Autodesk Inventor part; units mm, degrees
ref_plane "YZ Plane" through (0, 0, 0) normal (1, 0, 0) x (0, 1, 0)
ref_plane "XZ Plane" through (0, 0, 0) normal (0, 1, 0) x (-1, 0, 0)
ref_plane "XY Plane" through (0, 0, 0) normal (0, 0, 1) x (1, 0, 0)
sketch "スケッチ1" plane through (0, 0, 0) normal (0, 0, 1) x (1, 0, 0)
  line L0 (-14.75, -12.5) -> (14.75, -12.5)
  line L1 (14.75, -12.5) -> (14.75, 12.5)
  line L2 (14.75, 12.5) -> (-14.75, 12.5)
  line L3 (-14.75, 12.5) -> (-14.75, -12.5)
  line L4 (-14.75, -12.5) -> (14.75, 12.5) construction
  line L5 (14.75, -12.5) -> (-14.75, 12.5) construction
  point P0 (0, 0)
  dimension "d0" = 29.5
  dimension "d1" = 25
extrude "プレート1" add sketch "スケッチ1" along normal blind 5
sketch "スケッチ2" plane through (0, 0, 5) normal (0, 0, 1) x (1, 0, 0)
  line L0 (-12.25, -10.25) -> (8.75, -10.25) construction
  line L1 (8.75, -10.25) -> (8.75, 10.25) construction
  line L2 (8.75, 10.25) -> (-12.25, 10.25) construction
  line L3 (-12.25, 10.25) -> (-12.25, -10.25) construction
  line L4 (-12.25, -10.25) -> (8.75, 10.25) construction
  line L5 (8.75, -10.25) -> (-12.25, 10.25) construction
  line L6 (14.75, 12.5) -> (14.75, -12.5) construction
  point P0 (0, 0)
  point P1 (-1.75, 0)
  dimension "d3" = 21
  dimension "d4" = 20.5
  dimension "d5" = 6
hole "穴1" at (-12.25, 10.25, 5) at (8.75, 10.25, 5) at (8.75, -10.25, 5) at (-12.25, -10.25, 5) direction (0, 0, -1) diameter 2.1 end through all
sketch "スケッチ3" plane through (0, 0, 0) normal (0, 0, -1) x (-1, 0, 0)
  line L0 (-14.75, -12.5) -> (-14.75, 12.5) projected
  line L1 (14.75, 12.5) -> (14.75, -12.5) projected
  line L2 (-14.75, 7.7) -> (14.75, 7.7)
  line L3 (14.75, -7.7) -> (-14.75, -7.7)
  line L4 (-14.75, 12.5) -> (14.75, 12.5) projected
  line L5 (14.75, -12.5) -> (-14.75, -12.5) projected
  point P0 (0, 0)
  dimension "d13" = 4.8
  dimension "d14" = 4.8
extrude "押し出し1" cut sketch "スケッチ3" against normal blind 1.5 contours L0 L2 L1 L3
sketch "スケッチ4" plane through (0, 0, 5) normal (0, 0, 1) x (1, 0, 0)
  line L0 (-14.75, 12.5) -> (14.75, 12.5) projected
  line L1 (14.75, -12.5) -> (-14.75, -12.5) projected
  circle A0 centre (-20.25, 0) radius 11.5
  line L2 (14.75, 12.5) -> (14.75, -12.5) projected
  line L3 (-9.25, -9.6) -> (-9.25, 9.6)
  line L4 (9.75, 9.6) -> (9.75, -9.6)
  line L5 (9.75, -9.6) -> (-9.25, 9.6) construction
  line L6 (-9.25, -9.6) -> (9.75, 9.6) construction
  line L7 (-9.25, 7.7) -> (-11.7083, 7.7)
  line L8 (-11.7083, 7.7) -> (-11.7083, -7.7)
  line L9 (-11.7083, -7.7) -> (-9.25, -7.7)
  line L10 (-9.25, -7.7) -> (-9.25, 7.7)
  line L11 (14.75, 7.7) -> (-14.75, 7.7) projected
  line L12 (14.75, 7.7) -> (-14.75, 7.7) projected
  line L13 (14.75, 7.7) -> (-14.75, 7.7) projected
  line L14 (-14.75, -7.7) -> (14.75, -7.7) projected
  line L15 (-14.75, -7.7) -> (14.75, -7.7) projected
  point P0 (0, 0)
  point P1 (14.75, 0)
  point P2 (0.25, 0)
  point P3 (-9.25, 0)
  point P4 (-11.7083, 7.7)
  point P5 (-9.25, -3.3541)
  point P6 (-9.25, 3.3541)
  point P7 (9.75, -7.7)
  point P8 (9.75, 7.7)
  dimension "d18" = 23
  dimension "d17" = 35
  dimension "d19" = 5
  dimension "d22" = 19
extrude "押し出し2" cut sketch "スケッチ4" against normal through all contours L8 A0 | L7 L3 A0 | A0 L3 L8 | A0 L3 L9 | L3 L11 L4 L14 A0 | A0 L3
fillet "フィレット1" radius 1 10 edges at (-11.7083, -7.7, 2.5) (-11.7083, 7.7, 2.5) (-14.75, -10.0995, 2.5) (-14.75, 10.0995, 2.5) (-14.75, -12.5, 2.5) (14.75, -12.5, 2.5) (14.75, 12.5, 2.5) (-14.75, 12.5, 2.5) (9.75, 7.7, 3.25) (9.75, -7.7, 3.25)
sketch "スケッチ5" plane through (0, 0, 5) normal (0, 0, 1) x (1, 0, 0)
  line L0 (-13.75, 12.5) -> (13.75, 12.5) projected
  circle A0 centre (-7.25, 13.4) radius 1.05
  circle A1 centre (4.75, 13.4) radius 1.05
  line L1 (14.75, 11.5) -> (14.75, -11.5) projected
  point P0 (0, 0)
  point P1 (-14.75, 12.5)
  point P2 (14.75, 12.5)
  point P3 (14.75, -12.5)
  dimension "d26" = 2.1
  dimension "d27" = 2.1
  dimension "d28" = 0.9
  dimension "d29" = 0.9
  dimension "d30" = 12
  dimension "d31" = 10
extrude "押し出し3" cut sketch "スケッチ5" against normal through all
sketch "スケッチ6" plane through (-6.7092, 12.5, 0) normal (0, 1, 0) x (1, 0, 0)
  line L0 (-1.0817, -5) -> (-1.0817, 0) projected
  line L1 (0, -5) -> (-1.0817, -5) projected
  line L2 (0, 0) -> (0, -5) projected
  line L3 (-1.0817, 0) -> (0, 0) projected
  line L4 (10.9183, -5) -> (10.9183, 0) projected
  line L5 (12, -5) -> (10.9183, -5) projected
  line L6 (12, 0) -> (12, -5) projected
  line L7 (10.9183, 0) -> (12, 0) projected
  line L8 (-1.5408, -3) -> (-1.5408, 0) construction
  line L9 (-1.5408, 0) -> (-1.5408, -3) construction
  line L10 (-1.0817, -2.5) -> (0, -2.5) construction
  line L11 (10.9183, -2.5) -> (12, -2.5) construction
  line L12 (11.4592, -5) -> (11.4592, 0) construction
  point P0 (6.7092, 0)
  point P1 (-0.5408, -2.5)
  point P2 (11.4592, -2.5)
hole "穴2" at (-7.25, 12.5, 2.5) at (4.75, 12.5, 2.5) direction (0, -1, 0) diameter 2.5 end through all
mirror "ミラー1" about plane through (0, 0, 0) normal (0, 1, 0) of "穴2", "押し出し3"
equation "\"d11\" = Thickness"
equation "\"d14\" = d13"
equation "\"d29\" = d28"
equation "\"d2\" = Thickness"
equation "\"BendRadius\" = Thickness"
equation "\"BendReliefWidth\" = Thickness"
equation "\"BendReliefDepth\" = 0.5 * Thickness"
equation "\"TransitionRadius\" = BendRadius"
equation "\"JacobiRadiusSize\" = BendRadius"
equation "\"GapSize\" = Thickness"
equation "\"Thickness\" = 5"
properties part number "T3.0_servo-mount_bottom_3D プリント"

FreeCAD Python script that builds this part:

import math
import FreeCAD as App
import Part
import Sketcher


def edges_at(feature, points):
    """Names of the edges that pass closest to the given points."""
    edges = feature.Shape.Edges
    near = lambda p: min(range(len(edges)), key=lambda i: edges[i].distToShape(Part.Vertex(*p))[0])
    return sorted({f"Edge{near(p) + 1}" for p in points})

doc = App.newDocument("Part")
params = doc.addObject("Spreadsheet::Sheet", "Params")
for row, (alias, value) in enumerate([
    ("sketch1_height", "25 mm"),
    ("sketch1_width", "29.5 mm"),
    ("pad1_length", "5 mm"),
    ("sketch2_diameter", "2.1 mm"),
    ("hole_diameter", "2.1 mm"),
    ("sketch3_width", "29.5 mm"),
    ("sketch3_height", "15.4 mm"),
    ("pocket1_length", "1.5 mm"),
    ("sketch4_radius", "11.5 mm"),
    ("sketch4_height", "15.4 mm"),
    ("fillet_radius", "1 mm"),
    ("sketch5_diameter", "2.1 mm"),
    ("sketch6_diameter", "2.5 mm"),
    ("hole2_diameter", "2.5 mm"),
], start=1):
    params.set(f"A{row}", alias)
    params.set(f"B{row}", "=" + value)
    params.setAlias(f"B{row}", alias)

body = doc.addObject("PartDesign::Body", "Body")

sketch1 = doc.addObject("Sketcher::SketchObject", "Sketch")
body.addObject(sketch1)
sketch1.AttachmentSupport = (doc.XY_Plane, [""])
sketch1.MapMode = "FlatFace"
sketch1.addGeometry(Part.LineSegment(App.Vector(-14.75, 12.5, 0), App.Vector(-14.75, -12.5, 0)), False)
sketch1.addGeometry(Part.LineSegment(App.Vector(-14.75, -12.5, 0), App.Vector(14.75, -12.5, 0)), False)
sketch1.addGeometry(Part.LineSegment(App.Vector(14.75, -12.5, 0), App.Vector(14.75, 12.5, 0)), False)
sketch1.addGeometry(Part.LineSegment(App.Vector(14.75, 12.5, 0), App.Vector(-14.75, 12.5, 0)), False)
sketch1.addConstraint(Sketcher.Constraint("Coincident", 0, 2, 1, 1))
sketch1.addConstraint(Sketcher.Constraint("Coincident", 1, 2, 2, 1))
sketch1.addConstraint(Sketcher.Constraint("Coincident", 2, 2, 3, 1))
sketch1.addConstraint(Sketcher.Constraint("Coincident", 3, 2, 0, 1))
sketch1.addConstraint(Sketcher.Constraint("Vertical", 0))
sketch1.addConstraint(Sketcher.Constraint("Horizontal", 1))
sketch1.addConstraint(Sketcher.Constraint("Vertical", 2))
sketch1.addConstraint(Sketcher.Constraint("Horizontal", 3))
sketch1.addConstraint(Sketcher.Constraint("Symmetric", 0, 2, 2, 2, -1, 1))
sketch1.addConstraint(Sketcher.Constraint("DistanceY", 0, 2, 0, 1, 25.0))
sketch1.addConstraint(Sketcher.Constraint("DistanceX", 1, 1, 1, 2, 29.5))
sketch1.setExpression("Constraints[9]", "Params.sketch1_height")
sketch1.setExpression("Constraints[10]", "Params.sketch1_width")
pad1 = doc.addObject("PartDesign::Pad", "Pad")
body.addObject(pad1)
pad1.Profile = sketch1
pad1.setExpression("Length", "Params.pad1_length")

sketch2 = doc.addObject("Sketcher::SketchObject", "Sketch001")
body.addObject(sketch2)
sketch2.AttachmentSupport = (doc.XY_Plane, [""])
sketch2.MapMode = "FlatFace"
sketch2.AttachmentOffset = App.Placement(App.Vector(0, 0, 5), App.Rotation())
sketch2.addGeometry(Part.Circle(App.Vector(-12.25, 10.25, 0), App.Vector(0, 0, 1), 1.05), False)
sketch2.addGeometry(Part.Circle(App.Vector(8.75, 10.25, 0), App.Vector(0, 0, 1), 1.05), False)
sketch2.addGeometry(Part.Circle(App.Vector(8.75, -10.25, 0), App.Vector(0, 0, 1), 1.05), False)
sketch2.addGeometry(Part.Circle(App.Vector(-12.25, -10.25, 0), App.Vector(0, 0, 1), 1.05), False)
sketch2.addConstraint(Sketcher.Constraint("Equal", 0, 1))
sketch2.addConstraint(Sketcher.Constraint("Equal", 1, 2))
sketch2.addConstraint(Sketcher.Constraint("Equal", 2, 3))
sketch2.addConstraint(Sketcher.Constraint("Symmetric", 1, 3, 2, 3, -1))
sketch2.addConstraint(Sketcher.Constraint("Symmetric", 0, 3, 3, 3, -1))
sketch2.addConstraint(Sketcher.Constraint("Horizontal", 0, 3, 1, 3))
sketch2.addConstraint(Sketcher.Constraint("Diameter", 0, 2.1))
sketch2.addConstraint(Sketcher.Constraint("DistanceX", 0, 3, 1, 3, 21.0))
sketch2.addConstraint(Sketcher.Constraint("DistanceY", 2, 3, 1, 3, 20.5))
sketch2.addConstraint(Sketcher.Constraint("DistanceX", 0, 3, -1, 1, 12.25))
sketch2.setExpression("Constraints[6]", "Params.sketch2_diameter")
doc.recompute()
hole = doc.addObject("PartDesign::Hole", "Hole")
body.addObject(hole)
hole.Profile = sketch2
hole.ThreadType = "None"
hole.setExpression("Diameter", "Params.hole_diameter")
hole.DepthType = "ThroughAll"

sketch3 = doc.addObject("Sketcher::SketchObject", "Sketch002")
body.addObject(sketch3)
sketch3.AttachmentSupport = (doc.XY_Plane, [""])
sketch3.MapMode = "FlatFace"
sketch3.addGeometry(Part.LineSegment(App.Vector(14.75, 7.7, 0), App.Vector(14.75, -7.7, 0)), False)
sketch3.addGeometry(Part.LineSegment(App.Vector(14.75, -7.7, 0), App.Vector(-14.75, -7.7, 0)), False)
sketch3.addGeometry(Part.LineSegment(App.Vector(-14.75, -7.7, 0), App.Vector(-14.75, 7.7, 0)), False)
sketch3.addGeometry(Part.LineSegment(App.Vector(-14.75, 7.7, 0), App.Vector(14.75, 7.7, 0)), False)
sketch3.addConstraint(Sketcher.Constraint("Coincident", 0, 2, 1, 1))
sketch3.addConstraint(Sketcher.Constraint("Coincident", 1, 2, 2, 1))
sketch3.addConstraint(Sketcher.Constraint("Coincident", 2, 2, 3, 1))
sketch3.addConstraint(Sketcher.Constraint("Coincident", 3, 2, 0, 1))
sketch3.addConstraint(Sketcher.Constraint("Vertical", 0))
sketch3.addConstraint(Sketcher.Constraint("Horizontal", 1))
sketch3.addConstraint(Sketcher.Constraint("Vertical", 2))
sketch3.addConstraint(Sketcher.Constraint("Horizontal", 3))
sketch3.addConstraint(Sketcher.Constraint("Symmetric", 0, 2, 2, 2, -1, 1))
sketch3.addConstraint(Sketcher.Constraint("DistanceX", 1, 2, 1, 1, 29.5))
sketch3.addConstraint(Sketcher.Constraint("DistanceY", 0, 2, 0, 1, 15.4))
sketch3.setExpression("Constraints[9]", "Params.sketch3_width")
sketch3.setExpression("Constraints[10]", "Params.sketch3_height")
pocket1 = doc.addObject("PartDesign::Pocket", "Pocket")
body.addObject(pocket1)
pocket1.Profile = sketch3
pocket1.setExpression("Length", "Params.pocket1_length")
pocket1.Reversed = True

sketch4 = doc.addObject("Sketcher::SketchObject", "Sketch003")
body.addObject(sketch4)
sketch4.AttachmentSupport = (doc.XY_Plane, [""])
sketch4.MapMode = "FlatFace"
sketch4.AttachmentOffset = App.Placement(App.Vector(0, 0, 5), App.Rotation())
sketch4.addGeometry(Part.ArcOfCircle(Part.Circle(App.Vector(-20.25, 0, 0), App.Vector(0, 0, 1), 11.5), math.radians(42.033392), math.radians(317.966608)), False)
sketch4.addGeometry(Part.LineSegment(App.Vector(-11.7083, -7.7, 0), App.Vector(9.75, -7.7, 0)), False)
sketch4.addGeometry(Part.LineSegment(App.Vector(9.75, -7.7, 0), App.Vector(9.75, 7.7, 0)), False)
sketch4.addGeometry(Part.LineSegment(App.Vector(9.75, 7.7, 0), App.Vector(-11.7083, 7.7, 0)), False)
sketch4.addConstraint(Sketcher.Constraint("Coincident", 0, 2, 1, 1))
sketch4.addConstraint(Sketcher.Constraint("Coincident", 1, 2, 2, 1))
sketch4.addConstraint(Sketcher.Constraint("Coincident", 2, 2, 3, 1))
sketch4.addConstraint(Sketcher.Constraint("Coincident", 3, 2, 0, 1))
sketch4.addConstraint(Sketcher.Constraint("Horizontal", 1))
sketch4.addConstraint(Sketcher.Constraint("Vertical", 2))
sketch4.addConstraint(Sketcher.Constraint("Horizontal", 3))
sketch4.addConstraint(Sketcher.Constraint("Symmetric", 0, 2, 3, 2, -1))
sketch4.addConstraint(Sketcher.Constraint("Radius", 0, 11.5))
sketch4.addConstraint(Sketcher.Constraint("DistanceY", 2, 1, 2, 2, 15.4))
sketch4.addConstraint(Sketcher.Constraint("DistanceX", 0, 3, 1, 2, 30.0))
sketch4.addConstraint(Sketcher.Constraint("DistanceX", 0, 3, -1, 1, 20.25))
sketch4.setExpression("Constraints[8]", "Params.sketch4_radius")
sketch4.setExpression("Constraints[9]", "Params.sketch4_height")
pocket2 = doc.addObject("PartDesign::Pocket", "Pocket001")
body.addObject(pocket2)
pocket2.Profile = sketch4
pocket2.Type = "ThroughAll"
doc.recompute()

fillet = doc.addObject("PartDesign::Fillet", "Fillet")
body.addObject(fillet)
fillet.Base = (pocket2, edges_at(pocket2, [
    (-11.708, -7.7, 2.5),
    (-11.708, 7.7, 2.5),
    (-14.75, -10.1, 2.5),
    (-14.75, 10.1, 2.5),
    (-14.75, -12.5, 2.5),
    (14.75, -12.5, 2.5),
    (14.75, 12.5, 2.5),
    (-14.75, 12.5, 2.5),
    (9.75, 7.7, 3.25),
    (9.75, -7.7, 3.25),
]))
fillet.setExpression("Radius", "Params.fillet_radius")

sketch5 = doc.addObject("Sketcher::SketchObject", "Sketch004")
body.addObject(sketch5)
sketch5.AttachmentSupport = (doc.XY_Plane, [""])
sketch5.MapMode = "FlatFace"
sketch5.AttachmentOffset = App.Placement(App.Vector(0, 0, 5), App.Rotation())
sketch5.addGeometry(Part.Circle(App.Vector(-7.25, 13.4, 0), App.Vector(0, 0, 1), 1.05), False)
sketch5.addGeometry(Part.Circle(App.Vector(4.75, 13.4, 0), App.Vector(0, 0, 1), 1.05), False)
sketch5.addConstraint(Sketcher.Constraint("Equal", 0, 1))
sketch5.addConstraint(Sketcher.Constraint("Horizontal", 0, 3, 1, 3))
sketch5.addConstraint(Sketcher.Constraint("Diameter", 0, 2.1))
sketch5.addConstraint(Sketcher.Constraint("DistanceX", 0, 3, 1, 3, 12.0))
sketch5.addConstraint(Sketcher.Constraint("DistanceY", -1, 1, 0, 3, 13.4))
sketch5.addConstraint(Sketcher.Constraint("DistanceX", 0, 3, -1, 1, 7.25))
sketch5.setExpression("Constraints[2]", "Params.sketch5_diameter")
pocket3 = doc.addObject("PartDesign::Pocket", "Pocket002")
body.addObject(pocket3)
pocket3.Profile = sketch5
pocket3.Type = "ThroughAll"

sketch6 = doc.addObject("Sketcher::SketchObject", "Sketch005")
body.addObject(sketch6)
sketch6.AttachmentSupport = (doc.XZ_Plane, [""])
sketch6.MapMode = "FlatFace"
sketch6.AttachmentOffset = App.Placement(App.Vector(0, 0, -12.5), App.Rotation())
sketch6.addGeometry(Part.Circle(App.Vector(-7.25, 2.5, 0), App.Vector(0, 0, 1), 1.25), False)
sketch6.addGeometry(Part.Circle(App.Vector(4.75, 2.5, 0), App.Vector(0, 0, 1), 1.25), False)
sketch6.addConstraint(Sketcher.Constraint("Equal", 0, 1))
sketch6.addConstraint(Sketcher.Constraint("Horizontal", 0, 3, 1, 3))
sketch6.addConstraint(Sketcher.Constraint("Diameter", 0, 2.5))
sketch6.addConstraint(Sketcher.Constraint("DistanceX", 0, 3, 1, 3, 12.0))
sketch6.addConstraint(Sketcher.Constraint("DistanceY", -1, 1, 0, 3, 2.5))
sketch6.addConstraint(Sketcher.Constraint("DistanceX", 0, 3, -1, 1, 7.25))
sketch6.setExpression("Constraints[2]", "Params.sketch6_diameter")
doc.recompute()
hole2 = doc.addObject("PartDesign::Hole", "Hole001")
body.addObject(hole2)
hole2.Profile = sketch6
hole2.ThreadType = "None"
hole2.setExpression("Diameter", "Params.hole2_diameter")
hole2.DepthType = "ThroughAll"
hole2.Reversed = True
doc.recompute()

mirrored = doc.addObject("PartDesign::Mirrored", "Mirrored")
body.addObject(mirrored)
mirrored.Originals = [hole2, pocket3]
mirrored.MirrorPlane = (doc.XZ_Plane, [""])
body.Tip = mirrored

doc.recompute()
